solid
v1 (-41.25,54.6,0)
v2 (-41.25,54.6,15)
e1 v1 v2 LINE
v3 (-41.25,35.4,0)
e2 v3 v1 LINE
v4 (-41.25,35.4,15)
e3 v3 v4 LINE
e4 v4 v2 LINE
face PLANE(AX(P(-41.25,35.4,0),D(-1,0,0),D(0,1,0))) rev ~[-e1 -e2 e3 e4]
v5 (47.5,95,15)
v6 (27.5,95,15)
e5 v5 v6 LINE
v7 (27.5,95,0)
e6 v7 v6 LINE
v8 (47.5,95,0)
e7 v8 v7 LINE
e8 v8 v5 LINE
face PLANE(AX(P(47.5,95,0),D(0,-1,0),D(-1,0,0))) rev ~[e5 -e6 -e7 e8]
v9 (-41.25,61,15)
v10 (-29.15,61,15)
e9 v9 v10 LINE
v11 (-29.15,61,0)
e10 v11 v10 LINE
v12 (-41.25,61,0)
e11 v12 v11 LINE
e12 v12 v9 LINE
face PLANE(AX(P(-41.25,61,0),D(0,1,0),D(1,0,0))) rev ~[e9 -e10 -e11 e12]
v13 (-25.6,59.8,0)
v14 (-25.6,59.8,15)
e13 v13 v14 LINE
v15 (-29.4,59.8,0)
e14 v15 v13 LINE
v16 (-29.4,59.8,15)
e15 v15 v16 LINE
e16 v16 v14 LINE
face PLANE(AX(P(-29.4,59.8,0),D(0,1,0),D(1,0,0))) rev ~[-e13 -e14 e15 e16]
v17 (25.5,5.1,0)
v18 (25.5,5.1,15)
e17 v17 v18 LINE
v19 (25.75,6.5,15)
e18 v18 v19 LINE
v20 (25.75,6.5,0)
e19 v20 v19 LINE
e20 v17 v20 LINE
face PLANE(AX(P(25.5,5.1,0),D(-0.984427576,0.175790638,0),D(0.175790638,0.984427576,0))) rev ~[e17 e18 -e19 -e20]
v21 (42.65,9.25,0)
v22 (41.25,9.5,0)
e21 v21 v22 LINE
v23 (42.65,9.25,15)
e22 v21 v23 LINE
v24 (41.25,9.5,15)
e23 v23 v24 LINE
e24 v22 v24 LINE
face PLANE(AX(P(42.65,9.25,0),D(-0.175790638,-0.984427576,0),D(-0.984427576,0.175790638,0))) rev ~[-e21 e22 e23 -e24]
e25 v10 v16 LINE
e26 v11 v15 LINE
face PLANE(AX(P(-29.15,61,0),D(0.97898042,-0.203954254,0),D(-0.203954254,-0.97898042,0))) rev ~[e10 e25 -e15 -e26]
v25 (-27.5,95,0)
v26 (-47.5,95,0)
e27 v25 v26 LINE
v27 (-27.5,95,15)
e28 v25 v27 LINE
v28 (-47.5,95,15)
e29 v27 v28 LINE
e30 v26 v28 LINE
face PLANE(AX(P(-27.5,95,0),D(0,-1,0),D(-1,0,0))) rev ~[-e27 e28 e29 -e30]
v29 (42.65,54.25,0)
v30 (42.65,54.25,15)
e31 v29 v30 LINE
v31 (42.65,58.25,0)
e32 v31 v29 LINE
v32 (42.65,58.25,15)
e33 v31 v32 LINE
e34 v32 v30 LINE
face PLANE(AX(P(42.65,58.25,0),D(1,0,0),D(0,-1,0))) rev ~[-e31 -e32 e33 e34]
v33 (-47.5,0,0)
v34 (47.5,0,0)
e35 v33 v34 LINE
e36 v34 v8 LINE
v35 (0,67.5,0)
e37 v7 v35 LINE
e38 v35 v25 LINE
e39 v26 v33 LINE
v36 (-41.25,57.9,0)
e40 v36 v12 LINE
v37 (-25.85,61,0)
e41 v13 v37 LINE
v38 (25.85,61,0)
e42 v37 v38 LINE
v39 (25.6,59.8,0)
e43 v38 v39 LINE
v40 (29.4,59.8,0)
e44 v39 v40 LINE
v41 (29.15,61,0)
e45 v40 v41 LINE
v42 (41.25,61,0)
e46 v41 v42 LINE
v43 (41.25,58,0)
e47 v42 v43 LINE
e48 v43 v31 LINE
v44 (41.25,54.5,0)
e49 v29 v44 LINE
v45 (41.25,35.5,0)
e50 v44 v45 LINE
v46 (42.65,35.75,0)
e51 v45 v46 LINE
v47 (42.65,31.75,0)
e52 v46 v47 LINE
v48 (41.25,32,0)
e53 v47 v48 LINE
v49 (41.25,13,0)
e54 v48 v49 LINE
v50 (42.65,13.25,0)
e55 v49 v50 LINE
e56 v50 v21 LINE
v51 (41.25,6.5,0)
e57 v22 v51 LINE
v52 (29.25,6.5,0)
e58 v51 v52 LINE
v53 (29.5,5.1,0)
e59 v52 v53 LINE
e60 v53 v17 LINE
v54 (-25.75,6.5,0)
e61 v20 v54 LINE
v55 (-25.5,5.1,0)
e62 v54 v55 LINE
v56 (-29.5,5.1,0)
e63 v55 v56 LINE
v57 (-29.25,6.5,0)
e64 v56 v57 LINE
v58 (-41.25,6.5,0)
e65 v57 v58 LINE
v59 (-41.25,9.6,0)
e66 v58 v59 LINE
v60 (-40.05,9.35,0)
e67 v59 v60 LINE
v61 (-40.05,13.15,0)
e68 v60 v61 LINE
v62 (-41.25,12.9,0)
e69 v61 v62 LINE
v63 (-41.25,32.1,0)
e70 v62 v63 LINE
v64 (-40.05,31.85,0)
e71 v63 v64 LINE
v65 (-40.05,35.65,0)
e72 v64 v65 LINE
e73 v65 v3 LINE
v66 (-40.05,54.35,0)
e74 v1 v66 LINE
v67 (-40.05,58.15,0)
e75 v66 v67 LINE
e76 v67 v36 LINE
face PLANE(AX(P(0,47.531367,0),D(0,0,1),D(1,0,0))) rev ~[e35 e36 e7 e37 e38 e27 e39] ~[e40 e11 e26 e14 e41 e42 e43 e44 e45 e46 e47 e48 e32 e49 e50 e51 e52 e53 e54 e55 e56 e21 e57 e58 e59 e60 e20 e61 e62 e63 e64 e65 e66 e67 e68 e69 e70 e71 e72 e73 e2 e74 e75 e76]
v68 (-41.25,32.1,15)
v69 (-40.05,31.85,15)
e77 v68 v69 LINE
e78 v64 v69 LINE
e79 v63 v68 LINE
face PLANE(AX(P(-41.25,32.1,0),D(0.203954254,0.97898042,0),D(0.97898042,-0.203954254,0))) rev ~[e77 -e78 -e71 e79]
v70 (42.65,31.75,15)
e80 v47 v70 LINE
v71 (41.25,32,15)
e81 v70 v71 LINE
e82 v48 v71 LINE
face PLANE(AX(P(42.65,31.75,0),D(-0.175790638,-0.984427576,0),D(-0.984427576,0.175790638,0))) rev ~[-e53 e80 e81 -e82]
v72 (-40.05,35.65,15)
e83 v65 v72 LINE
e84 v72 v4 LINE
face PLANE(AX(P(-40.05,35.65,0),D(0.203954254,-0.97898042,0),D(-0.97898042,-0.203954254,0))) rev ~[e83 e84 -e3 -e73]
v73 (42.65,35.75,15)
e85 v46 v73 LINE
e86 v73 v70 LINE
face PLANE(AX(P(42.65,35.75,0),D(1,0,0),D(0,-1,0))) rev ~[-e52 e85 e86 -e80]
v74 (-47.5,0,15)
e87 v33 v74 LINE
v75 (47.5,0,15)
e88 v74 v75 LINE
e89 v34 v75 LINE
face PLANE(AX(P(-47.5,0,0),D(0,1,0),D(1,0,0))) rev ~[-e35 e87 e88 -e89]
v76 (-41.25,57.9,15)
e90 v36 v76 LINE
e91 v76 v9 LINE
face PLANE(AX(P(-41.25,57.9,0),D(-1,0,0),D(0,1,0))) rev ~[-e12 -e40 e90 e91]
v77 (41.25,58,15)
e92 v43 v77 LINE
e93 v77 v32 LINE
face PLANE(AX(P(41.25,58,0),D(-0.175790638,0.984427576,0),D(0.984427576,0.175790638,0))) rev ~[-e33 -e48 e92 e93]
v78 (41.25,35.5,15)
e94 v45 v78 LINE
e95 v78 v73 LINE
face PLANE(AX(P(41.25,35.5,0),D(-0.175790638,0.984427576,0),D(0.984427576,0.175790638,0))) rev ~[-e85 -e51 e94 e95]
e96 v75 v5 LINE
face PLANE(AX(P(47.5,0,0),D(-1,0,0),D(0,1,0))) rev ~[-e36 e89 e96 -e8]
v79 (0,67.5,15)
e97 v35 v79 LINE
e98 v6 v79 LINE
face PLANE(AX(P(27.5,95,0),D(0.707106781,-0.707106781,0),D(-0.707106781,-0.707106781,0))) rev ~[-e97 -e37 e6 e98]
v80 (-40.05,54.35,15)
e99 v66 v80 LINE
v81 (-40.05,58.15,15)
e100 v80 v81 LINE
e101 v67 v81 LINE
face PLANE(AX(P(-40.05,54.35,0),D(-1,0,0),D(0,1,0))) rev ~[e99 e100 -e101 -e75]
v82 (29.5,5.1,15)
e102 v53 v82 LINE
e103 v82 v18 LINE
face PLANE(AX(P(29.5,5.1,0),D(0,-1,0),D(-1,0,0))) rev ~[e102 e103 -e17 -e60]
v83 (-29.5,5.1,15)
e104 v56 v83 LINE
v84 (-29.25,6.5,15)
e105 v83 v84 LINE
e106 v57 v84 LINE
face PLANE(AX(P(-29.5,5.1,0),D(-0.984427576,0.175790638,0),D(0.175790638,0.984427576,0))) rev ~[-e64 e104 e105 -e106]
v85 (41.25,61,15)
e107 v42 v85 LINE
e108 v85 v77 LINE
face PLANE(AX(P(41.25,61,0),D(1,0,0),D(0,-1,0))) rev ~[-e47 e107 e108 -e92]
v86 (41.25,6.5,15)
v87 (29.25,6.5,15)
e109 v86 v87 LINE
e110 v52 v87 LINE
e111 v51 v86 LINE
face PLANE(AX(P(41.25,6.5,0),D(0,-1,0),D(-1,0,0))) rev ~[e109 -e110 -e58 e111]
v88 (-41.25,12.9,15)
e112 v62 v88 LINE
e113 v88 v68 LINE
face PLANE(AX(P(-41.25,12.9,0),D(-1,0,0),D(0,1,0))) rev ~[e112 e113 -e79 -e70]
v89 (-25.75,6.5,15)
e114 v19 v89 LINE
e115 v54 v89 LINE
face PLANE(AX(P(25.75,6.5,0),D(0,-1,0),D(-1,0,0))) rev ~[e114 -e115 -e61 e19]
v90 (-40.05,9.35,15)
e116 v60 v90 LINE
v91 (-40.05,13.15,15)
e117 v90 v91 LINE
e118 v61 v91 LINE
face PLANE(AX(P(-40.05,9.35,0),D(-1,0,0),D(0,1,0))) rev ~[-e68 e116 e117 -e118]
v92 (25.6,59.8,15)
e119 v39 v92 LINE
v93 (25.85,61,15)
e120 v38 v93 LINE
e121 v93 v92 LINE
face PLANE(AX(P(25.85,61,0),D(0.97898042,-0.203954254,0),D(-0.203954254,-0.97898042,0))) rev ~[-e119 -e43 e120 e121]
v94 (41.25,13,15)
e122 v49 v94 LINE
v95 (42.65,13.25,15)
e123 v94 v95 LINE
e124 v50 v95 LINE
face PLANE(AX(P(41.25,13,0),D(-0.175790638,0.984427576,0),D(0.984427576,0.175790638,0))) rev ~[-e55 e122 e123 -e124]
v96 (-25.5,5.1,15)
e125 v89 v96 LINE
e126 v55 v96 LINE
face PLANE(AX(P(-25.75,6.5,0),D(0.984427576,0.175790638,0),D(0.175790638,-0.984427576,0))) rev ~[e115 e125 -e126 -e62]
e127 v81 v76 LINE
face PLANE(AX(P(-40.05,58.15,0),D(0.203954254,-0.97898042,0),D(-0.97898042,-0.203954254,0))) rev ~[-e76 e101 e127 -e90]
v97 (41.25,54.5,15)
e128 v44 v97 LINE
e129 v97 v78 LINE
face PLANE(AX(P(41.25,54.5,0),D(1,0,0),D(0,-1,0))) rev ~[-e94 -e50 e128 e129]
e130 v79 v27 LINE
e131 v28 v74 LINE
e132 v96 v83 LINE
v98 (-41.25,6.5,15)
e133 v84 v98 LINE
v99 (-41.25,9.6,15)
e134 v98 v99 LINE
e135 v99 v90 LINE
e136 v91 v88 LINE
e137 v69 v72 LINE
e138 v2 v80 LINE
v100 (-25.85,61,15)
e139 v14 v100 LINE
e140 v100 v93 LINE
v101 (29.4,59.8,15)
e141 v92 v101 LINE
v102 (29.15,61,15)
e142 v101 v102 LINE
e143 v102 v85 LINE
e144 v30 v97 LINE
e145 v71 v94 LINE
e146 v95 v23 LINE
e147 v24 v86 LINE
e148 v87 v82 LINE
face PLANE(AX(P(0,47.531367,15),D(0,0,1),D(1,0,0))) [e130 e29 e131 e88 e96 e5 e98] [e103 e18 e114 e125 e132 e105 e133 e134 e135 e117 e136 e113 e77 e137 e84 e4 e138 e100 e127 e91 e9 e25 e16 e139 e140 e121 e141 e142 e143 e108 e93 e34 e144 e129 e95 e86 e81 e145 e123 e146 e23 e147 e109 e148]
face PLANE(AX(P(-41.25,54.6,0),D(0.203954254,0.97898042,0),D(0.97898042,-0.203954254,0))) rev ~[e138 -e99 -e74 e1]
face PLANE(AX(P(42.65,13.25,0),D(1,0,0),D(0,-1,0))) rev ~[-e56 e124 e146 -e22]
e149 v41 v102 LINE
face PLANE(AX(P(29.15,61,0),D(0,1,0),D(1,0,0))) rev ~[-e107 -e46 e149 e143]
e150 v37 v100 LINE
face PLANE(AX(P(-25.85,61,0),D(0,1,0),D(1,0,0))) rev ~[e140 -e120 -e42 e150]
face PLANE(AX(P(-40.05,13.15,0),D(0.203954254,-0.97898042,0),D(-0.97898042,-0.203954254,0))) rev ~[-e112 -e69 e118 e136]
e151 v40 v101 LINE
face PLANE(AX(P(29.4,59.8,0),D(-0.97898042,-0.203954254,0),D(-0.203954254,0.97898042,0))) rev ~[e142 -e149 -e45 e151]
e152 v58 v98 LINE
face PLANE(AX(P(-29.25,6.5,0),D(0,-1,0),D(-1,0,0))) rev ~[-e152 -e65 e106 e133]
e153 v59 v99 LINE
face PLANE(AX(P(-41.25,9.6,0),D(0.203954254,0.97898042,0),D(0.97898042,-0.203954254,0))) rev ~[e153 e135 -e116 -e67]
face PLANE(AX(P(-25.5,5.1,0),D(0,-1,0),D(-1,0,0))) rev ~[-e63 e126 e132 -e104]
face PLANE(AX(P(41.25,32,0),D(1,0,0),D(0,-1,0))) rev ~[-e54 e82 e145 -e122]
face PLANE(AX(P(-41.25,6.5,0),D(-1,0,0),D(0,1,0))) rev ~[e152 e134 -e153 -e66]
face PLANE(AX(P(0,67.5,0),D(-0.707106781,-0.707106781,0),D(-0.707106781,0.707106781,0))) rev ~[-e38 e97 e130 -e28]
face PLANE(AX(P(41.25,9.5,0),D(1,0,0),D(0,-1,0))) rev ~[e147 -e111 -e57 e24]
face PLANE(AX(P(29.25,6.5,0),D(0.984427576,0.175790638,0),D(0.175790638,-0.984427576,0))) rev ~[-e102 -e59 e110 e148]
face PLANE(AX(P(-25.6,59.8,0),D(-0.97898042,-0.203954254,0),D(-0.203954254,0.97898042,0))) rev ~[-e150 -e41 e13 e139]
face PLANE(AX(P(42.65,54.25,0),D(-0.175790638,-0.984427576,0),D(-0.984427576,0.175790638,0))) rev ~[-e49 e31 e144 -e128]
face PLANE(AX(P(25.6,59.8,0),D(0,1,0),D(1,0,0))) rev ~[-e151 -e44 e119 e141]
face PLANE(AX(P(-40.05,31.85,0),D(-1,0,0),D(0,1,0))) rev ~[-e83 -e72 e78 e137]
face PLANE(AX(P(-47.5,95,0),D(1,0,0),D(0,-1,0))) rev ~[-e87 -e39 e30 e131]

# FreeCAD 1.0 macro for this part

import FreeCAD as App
import Part
import Sketcher

V = App.Vector
Q = App.Units.Quantity

doc = App.newDocument("Part")
params = doc.addObject("Spreadsheet::Sheet", "Params")
for row, (alias, value) in enumerate([
    ("sketch1_width", "20 mm"),
    ("sketch1_width2", "95 mm"),
    ("sketch1_width3", "12 mm"),
    ("sketch1_width4", "4 mm"),
    ("sketch1_height", "3 mm"),
    ("pad1_length", "15 mm"),
], start=1):
    params.set(f"A{row}", alias)
    params.set(f"B{row}", "=" + value)
    params.setAlias(f"B{row}", alias)

body = doc.addObject("PartDesign::Body", "Body")

# Sketch on XY plane
sketch1 = doc.addObject("Sketcher::SketchObject", "Sketch")
body.addObject(sketch1)
sketch1.AttachmentSupport = (doc.XY_Plane, [""])
sketch1.MapMode = "FlatFace"
sketch1.addGeometry([
    Part.LineSegment(V(0, 67.5, 0), V(-27.5, 95, 0)),  # 0
    Part.LineSegment(V(-27.5, 95, 0), V(-47.5, 95, 0)),  # 1
    Part.LineSegment(V(-47.5, 95, 0), V(-47.5, 0, 0)),  # 2
    Part.LineSegment(V(-47.5, 0, 0), V(47.5, 0, 0)),  # 3
    Part.LineSegment(V(47.5, 0, 0), V(47.5, 95, 0)),  # 4
    Part.LineSegment(V(47.5, 95, 0), V(27.5, 95, 0)),  # 5
    Part.LineSegment(V(27.5, 95, 0), V(0, 67.5, 0)),  # 6
    Part.LineSegment(V(-41.2, 57.9, 0), V(-41.2, 61, 0)),  # 7
    Part.LineSegment(V(-41.2, 61, 0), V(-29.1, 61, 0)),  # 8
    Part.LineSegment(V(-29.1, 61, 0), V(-29.4, 59.8, 0)),  # 9
    Part.LineSegment(V(-29.4, 59.8, 0), V(-25.6, 59.8, 0)),  # 10
    Part.LineSegment(V(-25.6, 59.8, 0), V(-25.9, 61, 0)),  # 11
    Part.LineSegment(V(-25.9, 61, 0), V(25.9, 61, 0)),  # 12
    Part.LineSegment(V(25.9, 61, 0), V(25.6, 59.8, 0)),  # 13
    Part.LineSegment(V(25.6, 59.8, 0), V(29.4, 59.8, 0)),  # 14
    Part.LineSegment(V(29.4, 59.8, 0), V(29.1, 61, 0)),  # 15
    Part.LineSegment(V(29.1, 61, 0), V(41.2, 61, 0)),  # 16
    Part.LineSegment(V(41.2, 61, 0), V(41.2, 58, 0)),  # 17
    Part.LineSegment(V(41.2, 58, 0), V(42.6, 58.2, 0)),  # 18
    Part.LineSegment(V(42.6, 58.2, 0), V(42.6, 54.2, 0)),  # 19
    Part.LineSegment(V(42.6, 54.2, 0), V(41.2, 54.5, 0)),  # 20
    Part.LineSegment(V(41.2, 54.5, 0), V(41.2, 35.5, 0)),  # 21
    Part.LineSegment(V(41.2, 35.5, 0), V(42.6, 35.8, 0)),  # 22
    Part.LineSegment(V(42.6, 35.8, 0), V(42.6, 31.8, 0)),  # 23
    Part.LineSegment(V(42.6, 31.8, 0), V(41.2, 32, 0)),  # 24
    Part.LineSegment(V(41.2, 32, 0), V(41.2, 13, 0)),  # 25
    Part.LineSegment(V(41.2, 13, 0), V(42.6, 13.2, 0)),  # 26
    Part.LineSegment(V(42.6, 13.2, 0), V(42.6, 9.2, 0)),  # 27
    Part.LineSegment(V(42.6, 9.2, 0), V(41.2, 9.5, 0)),  # 28
    Part.LineSegment(V(41.2, 9.5, 0), V(41.2, 6.5, 0)),  # 29
    Part.LineSegment(V(41.2, 6.5, 0), V(29.2, 6.5, 0)),  # 30
    Part.LineSegment(V(29.2, 6.5, 0), V(29.5, 5.1, 0)),  # 31
    Part.LineSegment(V(29.5, 5.1, 0), V(25.5, 5.1, 0)),  # 32
    Part.LineSegment(V(25.5, 5.1, 0), V(25.8, 6.5, 0)),  # 33
    Part.LineSegment(V(25.8, 6.5, 0), V(-25.8, 6.5, 0)),  # 34
    Part.LineSegment(V(-25.8, 6.5, 0), V(-25.5, 5.1, 0)),  # 35
    Part.LineSegment(V(-25.5, 5.1, 0), V(-29.5, 5.1, 0)),  # 36
    Part.LineSegment(V(-29.5, 5.1, 0), V(-29.2, 6.5, 0)),  # 37
    Part.LineSegment(V(-29.2, 6.5, 0), V(-41.2, 6.5, 0)),  # 38
    Part.LineSegment(V(-41.2, 6.5, 0), V(-41.2, 9.6, 0)),  # 39
    Part.LineSegment(V(-41.2, 9.6, 0), V(-40, 9.3, 0)),  # 40
    Part.LineSegment(V(-40, 9.3, 0), V(-40, 13.2, 0)),  # 41
    Part.LineSegment(V(-40, 13.2, 0), V(-41.2, 12.9, 0)),  # 42
    Part.LineSegment(V(-41.2, 12.9, 0), V(-41.2, 32.1, 0)),  # 43
    Part.LineSegment(V(-41.2, 32.1, 0), V(-40, 31.9, 0)),  # 44
    Part.LineSegment(V(-40, 31.9, 0), V(-40, 35.6, 0)),  # 45
    Part.LineSegment(V(-40, 35.6, 0), V(-41.2, 35.4, 0)),  # 46
    Part.LineSegment(V(-41.2, 35.4, 0), V(-41.2, 54.6, 0)),  # 47
    Part.LineSegment(V(-41.2, 54.6, 0), V(-40, 54.4, 0)),  # 48
    Part.LineSegment(V(-40, 54.4, 0), V(-40, 58.1, 0)),  # 49
    Part.LineSegment(V(-40, 58.1, 0), V(-41.2, 57.9, 0)),  # 50
], False)
sketch1.addConstraint([
    Sketcher.Constraint("Coincident", 0, 2, 1, 1),
    Sketcher.Constraint("Coincident", 1, 2, 2, 1),
    Sketcher.Constraint("Coincident", 2, 2, 3, 1),
    Sketcher.Constraint("Coincident", 3, 2, 4, 1),
    Sketcher.Constraint("Coincident", 4, 2, 5, 1),
    Sketcher.Constraint("Coincident", 5, 2, 6, 1),
    Sketcher.Constraint("Coincident", 6, 2, 0, 1),
    Sketcher.Constraint("Coincident", 7, 2, 8, 1),
    Sketcher.Constraint("Coincident", 8, 2, 9, 1),
    Sketcher.Constraint("Coincident", 9, 2, 10, 1),
    Sketcher.Constraint("Coincident", 10, 2, 11, 1),
    Sketcher.Constraint("Coincident", 11, 2, 12, 1),
    Sketcher.Constraint("Coincident", 12, 2, 13, 1),
    Sketcher.Constraint("Coincident", 13, 2, 14, 1),
    Sketcher.Constraint("Coincident", 14, 2, 15, 1),
    Sketcher.Constraint("Coincident", 15, 2, 16, 1),
    Sketcher.Constraint("Coincident", 16, 2, 17, 1),
    Sketcher.Constraint("Coincident", 17, 2, 18, 1),
    Sketcher.Constraint("Coincident", 18, 2, 19, 1),
    Sketcher.Constraint("Coincident", 19, 2, 20, 1),
    Sketcher.Constraint("Coincident", 20, 2, 21, 1),
    Sketcher.Constraint("Coincident", 21, 2, 22, 1),
    Sketcher.Constraint("Coincident", 22, 2, 23, 1),
    Sketcher.Constraint("Coincident", 23, 2, 24, 1),
    Sketcher.Constraint("Coincident", 24, 2, 25, 1),
    Sketcher.Constraint("Coincident", 25, 2, 26, 1),
    Sketcher.Constraint("Coincident", 26, 2, 27, 1),
    Sketcher.Constraint("Coincident", 27, 2, 28, 1),
    Sketcher.Constraint("Coincident", 28, 2, 29, 1),
    Sketcher.Constraint("Coincident", 29, 2, 30, 1),
    Sketcher.Constraint("Coincident", 30, 2, 31, 1),
    Sketcher.Constraint("Coincident", 31, 2, 32, 1),
    Sketcher.Constraint("Coincident", 32, 2, 33, 1),
    Sketcher.Constraint("Coincident", 33, 2, 34, 1),
    Sketcher.Constraint("Coincident", 34, 2, 35, 1),
    Sketcher.Constraint("Coincident", 35, 2, 36, 1),
    Sketcher.Constraint("Coincident", 36, 2, 37, 1),
    Sketcher.Constraint("Coincident", 37, 2, 38, 1),
    Sketcher.Constraint("Coincident", 38, 2, 39, 1),
    Sketcher.Constraint("Coincident", 39, 2, 40, 1),
    Sketcher.Constraint("Coincident", 40, 2, 41, 1),
    Sketcher.Constraint("Coincident", 41, 2, 42, 1),
    Sketcher.Constraint("Coincident", 42, 2, 43, 1),
    Sketcher.Constraint("Coincident", 43, 2, 44, 1),
    Sketcher.Constraint("Coincident", 44, 2, 45, 1),
    Sketcher.Constraint("Coincident", 45, 2, 46, 1),
    Sketcher.Constraint("Coincident", 46, 2, 47, 1),
    Sketcher.Constraint("Coincident", 47, 2, 48, 1),
    Sketcher.Constraint("Coincident", 48, 2, 49, 1),
    Sketcher.Constraint("Coincident", 49, 2, 50, 1),
    Sketcher.Constraint("Coincident", 50, 2, 7, 1),
    Sketcher.Constraint("Horizontal", 1),
    Sketcher.Constraint("Vertical", 2),
    Sketcher.Constraint("Horizontal", 3),
    Sketcher.Constraint("Vertical", 4),
    Sketcher.Constraint("Horizontal", 5),
    Sketcher.Constraint("Vertical", 7),
    Sketcher.Constraint("Horizontal", 8),
    Sketcher.Constraint("Horizontal", 10),
    Sketcher.Constraint("Horizontal", 12),
    Sketcher.Constraint("Horizontal", 14),
    Sketcher.Constraint("Horizontal", 16),
    Sketcher.Constraint("Vertical", 17),
    Sketcher.Constraint("Vertical", 19),
    Sketcher.Constraint("Vertical", 21),
    Sketcher.Constraint("Vertical", 23),
    Sketcher.Constraint("Vertical", 25),
    Sketcher.Constraint("Vertical", 27),
    Sketcher.Constraint("Vertical", 29),
    Sketcher.Constraint("Horizontal", 30),
    Sketcher.Constraint("Horizontal", 32),
    Sketcher.Constraint("Horizontal", 34),
    Sketcher.Constraint("Horizontal", 36),
    Sketcher.Constraint("Horizontal", 38),
    Sketcher.Constraint("Vertical", 39),
    Sketcher.Constraint("Vertical", 41),
    Sketcher.Constraint("Vertical", 43),
    Sketcher.Constraint("Vertical", 45),
    Sketcher.Constraint("Vertical", 47),
    Sketcher.Constraint("Vertical", 49),
    Sketcher.Constraint("Symmetric", 2, 2, 3, 2, -1, 1),
    Sketcher.Constraint("Symmetric", 0, 2, 5, 2, -2),
    Sketcher.Constraint("Symmetric", 10, 2, 13, 2, -2),
    Sketcher.Constraint("Symmetric", 8, 2, 15, 2, -2),
    Sketcher.Constraint("Symmetric", 32, 2, 35, 2, -2),
    Sketcher.Constraint("Symmetric", 30, 2, 37, 2, -2),
    Sketcher.Constraint("PointOnObject", 6, 2, -2),
    Sketcher.Constraint("Perpendicular", 0, 6),
    Sketcher.Constraint("Parallel", 9, 13),
    Sketcher.Constraint("Parallel", 11, 15),
    Sketcher.Constraint("Parallel", 18, 22),
    Sketcher.Constraint("Parallel", 20, 24),
    Sketcher.Constraint("Parallel", 22, 26),
    Sketcher.Constraint("Parallel", 24, 28),
    Sketcher.Constraint("Perpendicular", 26, 31),
    Sketcher.Constraint("Perpendicular", 28, 33),
    Sketcher.Constraint("Parallel", 31, 35),
    Sketcher.Constraint("Parallel", 33, 37),
    Sketcher.Constraint("Perpendicular", 13, 40),
    Sketcher.Constraint("Perpendicular", 15, 42),
    Sketcher.Constraint("Parallel", 40, 44),
    Sketcher.Constraint("Parallel", 42, 46),
    Sketcher.Constraint("Parallel", 44, 48),
    Sketcher.Constraint("Parallel", 46, 50),
    Sketcher.Constraint("Horizontal", 8, 2, 11, 2),
    Sketcher.Constraint("Horizontal", 30, 2, 33, 2),
    Sketcher.Constraint("Vertical", 17, 2, 20, 2),
    Sketcher.Constraint("Vertical", 19, 2, 22, 2),
    Sketcher.Constraint("Vertical", 21, 2, 24, 2),
    Sketcher.Constraint("Vertical", 23, 2, 26, 2),
    Sketcher.Constraint("Vertical", 25, 2, 28, 2),
    Sketcher.Constraint("Vertical", 7, 2, 38, 2),
    Sketcher.Constraint("Vertical", 39, 2, 42, 2),
    Sketcher.Constraint("Vertical", 41, 2, 44, 2),
    Sketcher.Constraint("Vertical", 43, 2, 46, 2),
    Sketcher.Constraint("Vertical", 45, 2, 48, 2),
    Sketcher.Constraint("Equal", 10, 14),
    Sketcher.Constraint("Equal", 8, 16),
    Sketcher.Constraint("Equal", 32, 36),
    Sketcher.Constraint("Equal", 3, 2),
    Sketcher.Constraint("Equal", 36, 19),
    Sketcher.Constraint("Equal", 19, 23),
    Sketcher.Constraint("Equal", 21, 25),
    Sketcher.Constraint("Equal", 23, 27),
    Sketcher.Constraint("Equal", 17, 29),
    Sketcher.Constraint("Equal", 7, 39),
    Sketcher.Constraint("Equal", 14, 41),
    Sketcher.Constraint("Equal", 41, 45),
    Sketcher.Constraint("Equal", 43, 47),
    Sketcher.Constraint("Equal", 45, 49),
    Sketcher.Constraint("Equal", 28, 31),
    Sketcher.Constraint("Equal", 15, 40),
    Sketcher.Constraint("DistanceX", 1, 2, 1, 1, Q("20 mm")),
    Sketcher.Constraint("DistanceX", 3, 1, 3, 2, Q("95 mm")),
    Sketcher.Constraint("DistanceX", 30, 2, 30, 1, Q("12 mm")),
    Sketcher.Constraint("DistanceX", 32, 2, 32, 1, Q("4 mm")),
    Sketcher.Constraint("DistanceY", 17, 2, 17, 1, Q("3 mm")),
    Sketcher.Constraint("DistanceY", 21, 2, 21, 1, Q("19 mm")),
    Sketcher.Constraint("DistanceX", 8, 1, 8, 2, Q("12.1 mm")),
    Sketcher.Constraint("DistanceX", 10, 1, 10, 2, Q("3.8 mm")),
    Sketcher.Constraint("DistanceX", 12, 1, 12, 2, Q("51.7 mm")),
    Sketcher.Constraint("DistanceX", 34, 2, 34, 1, Q("51.5 mm")),
    Sketcher.Constraint("DistanceY", 7, 1, 7, 2, Q("3.1 mm")),
    Sketcher.Constraint("DistanceY", -1, 1, 7, 2, Q("61 mm")),
    Sketcher.Constraint("DistanceY", -1, 1, 24, 2, Q("32 mm")),
    Sketcher.Constraint("DistanceY", -1, 1, 9, 2, Q("59.8 mm")),
    Sketcher.Constraint("DistanceY", -1, 1, 31, 2, Q("5.1 mm")),
])
sketch1.setExpression("Constraints[132]", "Params.sketch1_width")
sketch1.setExpression("Constraints[133]", "Params.sketch1_width2")
sketch1.setExpression("Constraints[134]", "Params.sketch1_width3")
sketch1.setExpression("Constraints[135]", "Params.sketch1_width4")
sketch1.setExpression("Constraints[136]", "Params.sketch1_height")
pad1 = doc.addObject("PartDesign::Pad", "Pad")
body.addObject(pad1)
pad1.Profile = sketch1
pad1.setExpression("Length", "Params.pad1_length")

doc.recompute()
